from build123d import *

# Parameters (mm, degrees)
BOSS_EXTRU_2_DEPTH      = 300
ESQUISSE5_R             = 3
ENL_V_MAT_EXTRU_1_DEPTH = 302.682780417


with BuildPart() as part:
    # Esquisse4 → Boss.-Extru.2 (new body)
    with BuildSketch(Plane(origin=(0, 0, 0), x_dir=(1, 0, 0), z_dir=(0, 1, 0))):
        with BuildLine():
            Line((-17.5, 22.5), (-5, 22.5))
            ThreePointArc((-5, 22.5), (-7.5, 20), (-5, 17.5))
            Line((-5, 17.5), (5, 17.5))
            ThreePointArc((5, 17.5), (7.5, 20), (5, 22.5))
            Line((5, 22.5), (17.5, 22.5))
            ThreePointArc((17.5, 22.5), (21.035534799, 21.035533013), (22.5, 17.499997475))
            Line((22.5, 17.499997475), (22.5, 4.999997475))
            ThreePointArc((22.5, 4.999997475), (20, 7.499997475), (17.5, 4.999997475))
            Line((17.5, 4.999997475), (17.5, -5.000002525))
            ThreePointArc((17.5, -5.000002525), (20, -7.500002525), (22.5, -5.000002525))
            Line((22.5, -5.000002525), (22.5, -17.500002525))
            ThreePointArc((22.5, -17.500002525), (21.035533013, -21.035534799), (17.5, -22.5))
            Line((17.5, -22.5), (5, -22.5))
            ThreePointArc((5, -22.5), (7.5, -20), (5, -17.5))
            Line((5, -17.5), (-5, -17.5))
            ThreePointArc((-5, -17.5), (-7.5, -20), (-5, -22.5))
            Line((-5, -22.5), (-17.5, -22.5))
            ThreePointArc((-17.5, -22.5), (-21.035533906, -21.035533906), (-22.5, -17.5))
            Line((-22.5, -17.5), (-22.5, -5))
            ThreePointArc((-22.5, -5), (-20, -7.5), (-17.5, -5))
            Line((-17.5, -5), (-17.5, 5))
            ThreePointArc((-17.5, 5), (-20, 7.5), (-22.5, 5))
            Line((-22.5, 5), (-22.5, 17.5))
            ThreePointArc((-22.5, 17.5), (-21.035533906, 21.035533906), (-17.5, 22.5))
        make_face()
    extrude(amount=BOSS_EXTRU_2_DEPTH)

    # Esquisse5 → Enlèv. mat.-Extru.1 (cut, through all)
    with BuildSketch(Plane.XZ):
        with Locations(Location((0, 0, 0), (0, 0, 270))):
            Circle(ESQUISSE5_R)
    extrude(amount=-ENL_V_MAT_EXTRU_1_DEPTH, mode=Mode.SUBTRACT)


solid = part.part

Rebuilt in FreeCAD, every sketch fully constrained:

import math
import FreeCAD as App
import Part
import Sketcher
from FreeCAD import Vector

doc = App.newDocument("Part")
body = doc.addObject("PartDesign::Body", "Body")

# Sketch on XZ plane
sketch1 = body.newObject("Sketcher::SketchObject", "Sketch")
sketch1.AttachmentSupport = (doc.getObject("XZ_Plane"), [""])
sketch1.MapMode = "FlatFace"
sketch1.addGeometry([
    Part.LineSegment(Vector(-5, -22.5, 0), Vector(-17.5, -22.5, 0)),  # 0
    Part.ArcOfCircle(Part.Circle(Vector(-17.5, -17.5, 0), Vector(0, 0, 1), 5), math.radians(180), math.radians(270)),  # 1
    Part.LineSegment(Vector(-22.5, -17.5, 0), Vector(-22.5, -5, 0)),  # 2
    Part.ArcOfCircle(Part.Circle(Vector(-20, -5, 0), Vector(0, 0, 1), 2.5), math.radians(180), math.radians(360)),  # 3
    Part.LineSegment(Vector(-17.5, -5, 0), Vector(-17.5, 5, 0)),  # 4
    Part.ArcOfCircle(Part.Circle(Vector(-20, 5, 0), Vector(0, 0, 1), 2.5), math.radians(0), math.radians(180)),  # 5
    Part.LineSegment(Vector(-22.5, 5, 0), Vector(-22.5, 17.5, 0)),  # 6
    Part.ArcOfCircle(Part.Circle(Vector(-17.5, 17.5, 0), Vector(0, 0, 1), 5), math.radians(90), math.radians(180)),  # 7
    Part.LineSegment(Vector(-17.5, 22.5, 0), Vector(-5, 22.5, 0)),  # 8
    Part.ArcOfCircle(Part.Circle(Vector(-5, 20, 0), Vector(0, 0, 1), 2.5), math.radians(90), math.radians(270)),  # 9
    Part.LineSegment(Vector(-5, 17.5, 0), Vector(5, 17.5, 0)),  # 10
    Part.ArcOfCircle(Part.Circle(Vector(5, 20, 0), Vector(0, 0, 1), 2.5), math.radians(-90), math.radians(90)),  # 11
    Part.LineSegment(Vector(5, 22.5, 0), Vector(17.5, 22.5, 0)),  # 12
    Part.ArcOfCircle(Part.Circle(Vector(17.5, 17.5, 0), Vector(0, 0, 1), 5), math.radians(0), math.radians(90)),  # 13
    Part.LineSegment(Vector(22.5, 17.5, 0), Vector(22.5, 5, 0)),  # 14
    Part.ArcOfCircle(Part.Circle(Vector(20, 5, 0), Vector(0, 0, 1), 2.5), math.radians(0), math.radians(180)),  # 15
    Part.LineSegment(Vector(17.5, 5, 0), Vector(17.5, -5, 0)),  # 16
    Part.ArcOfCircle(Part.Circle(Vector(20, -5, 0), Vector(0, 0, 1), 2.5), math.radians(180), math.radians(360)),  # 17
    Part.LineSegment(Vector(22.5, -5, 0), Vector(22.5, -17.5, 0)),  # 18
    Part.ArcOfCircle(Part.Circle(Vector(17.5, -17.5, 0), Vector(0, 0, 1), 5), math.radians(-90), math.radians(0)),  # 19
    Part.LineSegment(Vector(17.5, -22.5, 0), Vector(5, -22.5, 0)),  # 20
    Part.ArcOfCircle(Part.Circle(Vector(5, -20, 0), Vector(0, 0, 1), 2.5), math.radians(-90), math.radians(90)),  # 21
    Part.LineSegment(Vector(5, -17.5, 0), Vector(-5, -17.5, 0)),  # 22
    Part.ArcOfCircle(Part.Circle(Vector(-5, -20, 0), Vector(0, 0, 1), 2.5), math.radians(90), math.radians(270)),  # 23
], False)
sketch1.addConstraint([
    Sketcher.Constraint("Tangent", 0, 2, 1, 2),
    Sketcher.Constraint("Tangent", 1, 1, 2, 1),
    Sketcher.Constraint("Tangent", 2, 2, 3, 1),
    Sketcher.Constraint("Tangent", 3, 2, 4, 1),
    Sketcher.Constraint("Tangent", 4, 2, 5, 1),
    Sketcher.Constraint("Tangent", 5, 2, 6, 1),
    Sketcher.Constraint("Tangent", 6, 2, 7, 2),
    Sketcher.Constraint("Tangent", 7, 1, 8, 1),
    Sketcher.Constraint("Tangent", 8, 2, 9, 1),
    Sketcher.Constraint("Tangent", 9, 2, 10, 1),
    Sketcher.Constraint("Tangent", 10, 2, 11, 1),
    Sketcher.Constraint("Tangent", 11, 2, 12, 1),
    Sketcher.Constraint("Tangent", 12, 2, 13, 2),
    Sketcher.Constraint("Tangent", 13, 1, 14, 1),
    Sketcher.Constraint("Tangent", 14, 2, 15, 1),
    Sketcher.Constraint("Tangent", 15, 2, 16, 1),
    Sketcher.Constraint("Tangent", 16, 2, 17, 1),
    Sketcher.Constraint("Tangent", 17, 2, 18, 1),
    Sketcher.Constraint("Tangent", 18, 2, 19, 2),
    Sketcher.Constraint("Tangent", 19, 1, 20, 1),
    Sketcher.Constraint("Tangent", 20, 2, 21, 1),
    Sketcher.Constraint("Tangent", 21, 2, 22, 1),
    Sketcher.Constraint("Tangent", 22, 2, 23, 1),
    Sketcher.Constraint("Tangent", 23, 2, 0, 1),
    Sketcher.Constraint("Horizontal", 0),
    Sketcher.Constraint("Vertical", 2),
    Sketcher.Constraint("Vertical", 4),
    Sketcher.Constraint("Vertical", 6),
    Sketcher.Constraint("Horizontal", 8),
    Sketcher.Constraint("Horizontal", 10),
    Sketcher.Constraint("Horizontal", 12),
    Sketcher.Constraint("Vertical", 14),
    Sketcher.Constraint("Vertical", 16),
    Sketcher.Constraint("Vertical", 18),
    Sketcher.Constraint("Horizontal", 20),
    Sketcher.Constraint("Horizontal", 22),
    Sketcher.Constraint("Equal", 3, 5),
    Sketcher.Constraint("Equal", 1, 7),
    Sketcher.Constraint("Equal", 5, 9),
    Sketcher.Constraint("Equal", 9, 11),
    Sketcher.Constraint("Equal", 7, 13),
    Sketcher.Constraint("Equal", 11, 15),
    Sketcher.Constraint("Equal", 15, 17),
    Sketcher.Constraint("Equal", 13, 19),
    Sketcher.Constraint("Equal", 17, 21),
    Sketcher.Constraint("Equal", 21, 23),
    Sketcher.Constraint("Symmetric", 1, 3, 13, 3, -1, 1),
    Sketcher.Constraint("Horizontal", 6, 2, 9, 2),
    Sketcher.Constraint("Vertical", 11, 3, 21, 3),
    Sketcher.Constraint("Vertical", 9, 3, 23, 3),
    Sketcher.Constraint("Equal", 8, 12),
    Sketcher.Constraint("Equal", 20, 2),
    Sketcher.Constraint("Equal", 22, 4),
    Sketcher.Constraint("Equal", 2, 6),
    Sketcher.Constraint("Equal", 6, 14),
    Sketcher.Constraint("Equal", 4, 16),
    Sketcher.Constraint("Radius", 1, 5.0),
    Sketcher.Constraint("DistanceX", 10, 1, 10, 2, 10.0),
    Sketcher.Constraint("DistanceX", 0, 2, 0, 1, 12.5),
])
pad1 = body.newObject("PartDesign::Pad", "Pad")
pad1.Profile = sketch1
pad1.Length = 300
pad1.Reversed = True

# Sketch on XZ plane
sketch2 = body.newObject("Sketcher::SketchObject", "Sketch001")
sketch2.AttachmentSupport = (doc.getObject("XZ_Plane"), [""])
sketch2.MapMode = "FlatFace"
sketch2.addGeometry(Part.Circle(Vector(0, 0, 0), Vector(0, 0, 1), 3), False)
sketch2.addConstraint([
    Sketcher.Constraint("Coincident", 0, 3, -1, 1),
    Sketcher.Constraint("Diameter", 0, 6.0),
])
pocket1 = body.newObject("PartDesign::Pocket", "Pocket")
pocket1.Profile = sketch2
pocket1.Type = "ThroughAll"

doc.recompute()
